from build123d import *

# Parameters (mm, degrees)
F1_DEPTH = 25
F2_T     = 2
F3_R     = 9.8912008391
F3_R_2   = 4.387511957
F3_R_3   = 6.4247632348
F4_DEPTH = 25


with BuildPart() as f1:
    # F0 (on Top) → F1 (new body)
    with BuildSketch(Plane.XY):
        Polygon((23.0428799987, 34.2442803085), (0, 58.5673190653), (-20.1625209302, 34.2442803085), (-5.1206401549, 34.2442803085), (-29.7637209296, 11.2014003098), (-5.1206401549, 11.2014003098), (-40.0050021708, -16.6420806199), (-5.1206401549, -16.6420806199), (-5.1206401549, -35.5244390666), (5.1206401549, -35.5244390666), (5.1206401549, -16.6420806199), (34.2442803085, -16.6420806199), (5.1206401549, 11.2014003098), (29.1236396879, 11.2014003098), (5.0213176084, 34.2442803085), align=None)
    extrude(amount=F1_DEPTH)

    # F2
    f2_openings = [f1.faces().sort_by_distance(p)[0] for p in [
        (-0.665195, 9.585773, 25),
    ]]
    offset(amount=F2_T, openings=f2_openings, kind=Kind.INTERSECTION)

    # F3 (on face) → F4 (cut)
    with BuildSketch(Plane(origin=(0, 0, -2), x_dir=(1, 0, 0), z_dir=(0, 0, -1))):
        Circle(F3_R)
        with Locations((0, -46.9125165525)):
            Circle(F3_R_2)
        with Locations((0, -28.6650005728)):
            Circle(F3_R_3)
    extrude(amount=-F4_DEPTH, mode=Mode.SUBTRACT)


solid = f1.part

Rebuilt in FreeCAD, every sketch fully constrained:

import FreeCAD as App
import Part
import Sketcher
Q = App.Units.Quantity


def faces_at(feature, points):
    """Names of the faces that lie closest to the given points."""
    faces = feature.Shape.Faces
    near = lambda p: min(range(len(faces)), key=lambda i: faces[i].distToShape(Part.Vertex(*p))[0])
    return sorted({f"Face{near(p) + 1}" for p in points})


def add_polygon(sketch, points):
    """Adds a closed chain of lines whose ends are joined by coincident constraints."""
    first, n = sketch.GeometryCount, len(points)
    for a, b in zip(points, points[1:] + points[:1]):
        sketch.addGeometry(Part.LineSegment(App.Vector(*a, 0), App.Vector(*b, 0)), False)
    for i in range(n):
        sketch.addConstraint(Sketcher.Constraint("Coincident", first + i, 2, first + (i + 1) % n, 1))

doc = App.newDocument("Part")
body = doc.addObject("PartDesign::Body", "Body")

sketch1 = body.newObject("Sketcher::SketchObject", "Sketch")
sketch1.AttachmentSupport = (doc.getObject("XY_Plane"), [""])
sketch1.MapMode = "FlatFace"
add_polygon(sketch1, [(23, 34), (0, 59), (-20, 34), (-5, 34), (-30, 11), (-5, 11), (-40, -17), (-5, -17), (-5, -36), (5, -36), (5, -17), (34, -17), (5, 11), (29, 11), (5, 34)])
sketch1.addConstraint([
    Sketcher.Constraint("Horizontal", 2),
    Sketcher.Constraint("Horizontal", 4),
    Sketcher.Constraint("Horizontal", 6),
    Sketcher.Constraint("Vertical", 7),
    Sketcher.Constraint("Horizontal", 8),
    Sketcher.Constraint("Vertical", 9),
    Sketcher.Constraint("Horizontal", 10),
    Sketcher.Constraint("Horizontal", 12),
    Sketcher.Constraint("Horizontal", 14),
    Sketcher.Constraint("Symmetric", 6, 2, 9, 2, -2),
    Sketcher.Constraint("Symmetric", 4, 2, 11, 2, -2),
    Sketcher.Constraint("PointOnObject", 0, 2, -2),
    Sketcher.Constraint("Parallel", 11, 13),
    Sketcher.Constraint("Horizontal", 2, 2, 13, 2),
    Sketcher.Constraint("Vertical", 2, 2, 4, 2),
    Sketcher.Constraint("Vertical", 4, 2, 6, 2),
    Sketcher.Constraint("DistanceX", 12, 1, 12, 2, Q("24.003 mm")),
    Sketcher.Constraint("DistanceX", 2, 1, 2, 2, Q("15.041881 mm")),
    Sketcher.Constraint("DistanceX", 4, 1, 4, 2, Q("24.643081 mm")),
    Sketcher.Constraint("DistanceX", 8, 1, 8, 2, Q("10.24128 mm")),
    Sketcher.Constraint("DistanceX", 10, 1, 10, 2, Q("29.12364 mm")),
    Sketcher.Constraint("DistanceY", 7, 2, 7, 1, Q("18.882358 mm")),
    Sketcher.Constraint("DistanceY", -1, 1, 3, 2, Q("11.2014 mm")),
    Sketcher.Constraint("DistanceY", 5, 2, 0, 2, Q("75.2094 mm")),
    Sketcher.Constraint("Distance", 13, Q("33.345108 mm")),
    Sketcher.Constraint("DistanceX", 6, 1, 6, 2, Q("34.884362 mm")),
    Sketcher.Constraint("DistanceX", 14, 1, 14, 2, Q("18.021562 mm")),
    Sketcher.Constraint("DistanceY", -1, 1, 0, 2, Q("58.567319 mm")),
])
pad1 = body.newObject("PartDesign::Pad", "Pad")
pad1.Profile = sketch1
pad1.Length = 25
doc.recompute()

thickness = body.newObject("PartDesign::Thickness", "Thickness")
thickness.Base = (pad1, faces_at(pad1, [(-2.88, 11.521, 25)]))
thickness.Value = 2
thickness.Reversed = False
thickness.Join = "Intersection"

sketch2 = body.newObject("Sketcher::SketchObject", "Sketch001")
sketch2.AttachmentSupport = (doc.getObject("XY_Plane"), [""])
sketch2.MapMode = "FlatFace"
sketch2.AttachmentOffset = App.Placement(App.Vector(0, 0, -2), App.Rotation())
sketch2.addGeometry([
    Part.Circle(App.Vector(0, 0, 0), App.Vector(0, 0, 1), 9.9),
    Part.Circle(App.Vector(0, 46.9, 0), App.Vector(0, 0, 1), 4.4),
    Part.Circle(App.Vector(0, 28.7, 0), App.Vector(0, 0, 1), 6.4),
], False)
sketch2.addConstraint([
    Sketcher.Constraint("Coincident", 0, 3, -1, 1),
    Sketcher.Constraint("PointOnObject", 1, 3, -2),
    Sketcher.Constraint("PointOnObject", 2, 3, -2),
    Sketcher.Constraint("Diameter", 0, Q("19.782402 mm")),
    Sketcher.Constraint("Diameter", 1, Q("8.775024 mm")),
    Sketcher.Constraint("Diameter", 2, Q("12.849526 mm")),
    Sketcher.Constraint("DistanceY", -1, 1, 2, 3, Q("28.665001 mm")),
    Sketcher.Constraint("DistanceY", -1, 1, 1, 3, Q("46.912517 mm")),
])
pocket1 = body.newObject("PartDesign::Pocket", "Pocket")
pocket1.Profile = sketch2
pocket1.Length = 25
pocket1.Reversed = True

doc.recompute()
